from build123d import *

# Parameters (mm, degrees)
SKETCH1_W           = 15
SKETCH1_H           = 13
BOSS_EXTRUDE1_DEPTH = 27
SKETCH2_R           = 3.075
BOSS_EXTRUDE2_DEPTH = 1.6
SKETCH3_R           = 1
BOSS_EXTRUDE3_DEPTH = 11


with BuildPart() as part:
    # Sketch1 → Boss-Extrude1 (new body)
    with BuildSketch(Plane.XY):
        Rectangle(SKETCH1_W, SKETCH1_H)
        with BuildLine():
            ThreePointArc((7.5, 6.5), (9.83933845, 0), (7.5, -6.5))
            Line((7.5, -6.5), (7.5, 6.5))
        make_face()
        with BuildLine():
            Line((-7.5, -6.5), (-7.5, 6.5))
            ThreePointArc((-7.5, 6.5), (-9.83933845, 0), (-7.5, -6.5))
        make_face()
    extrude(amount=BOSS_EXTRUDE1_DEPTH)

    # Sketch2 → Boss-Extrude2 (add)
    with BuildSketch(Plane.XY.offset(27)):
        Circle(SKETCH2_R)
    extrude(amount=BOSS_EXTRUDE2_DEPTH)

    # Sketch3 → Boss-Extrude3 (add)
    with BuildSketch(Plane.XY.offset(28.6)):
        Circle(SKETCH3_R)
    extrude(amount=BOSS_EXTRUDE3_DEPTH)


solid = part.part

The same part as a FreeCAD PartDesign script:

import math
import FreeCAD as App
import Part
import Sketcher

V = App.Vector

doc = App.newDocument("Part")
params = doc.addObject("Spreadsheet::Sheet", "Params")
for row, (alias, value) in enumerate([
    ("sketch1_radius", "10.2 mm"),
    ("sketch1_width", "15 mm"),
    ("pad1_length", "27 mm"),
    ("sketch2_diameter", "6.15 mm"),
    ("pad2_length", "1.6 mm"),
    ("sketch3_diameter", "2 mm"),
    ("pad3_length", "11 mm"),
], start=1):
    params.set(f"A{row}", alias)
    params.set(f"B{row}", "=" + value)
    params.setAlias(f"B{row}", alias)

body = doc.addObject("PartDesign::Body", "Body")

# Sketch on XY plane
sketch1 = body.newObject("Sketcher::SketchObject", "Sketch")
sketch1.AttachmentSupport = (doc.getObject("XY_Plane"), [""])
sketch1.MapMode = "FlatFace"
sketch1.addGeometry([
    Part.LineSegment(V(-7.5, -6.5, 0), V(7.5, -6.5, 0)),
    Part.ArcOfCircle(Part.Circle(V(-0.360662, 0, 0), V(0, 0, 1), 10.2), math.radians(-39.587428), math.radians(39.587428)),
    Part.LineSegment(V(7.5, 6.5, 0), V(-7.5, 6.5, 0)),
    Part.ArcOfCircle(Part.Circle(V(0.360662, 0, 0), V(0, 0, 1), 10.2), math.radians(140.412572), math.radians(219.587428)),
], False)
sketch1.addConstraint([
    Sketcher.Constraint("Coincident", 0, 2, 1, 1),
    Sketcher.Constraint("Coincident", 1, 2, 2, 1),
    Sketcher.Constraint("Coincident", 2, 2, 3, 1),
    Sketcher.Constraint("Coincident", 3, 2, 0, 1),
    Sketcher.Constraint("Horizontal", 0),
    Sketcher.Constraint("Horizontal", 2),
    Sketcher.Constraint("Equal", 1, 3),
    Sketcher.Constraint("Symmetric", 1, 3, 3, 3, -1, 1),
    Sketcher.Constraint("Symmetric", 0, 2, 1, 2, -1),
    Sketcher.Constraint("Radius", 1, 10.2),
    Sketcher.Constraint("DistanceX", 0, 1, 0, 2, 15.0),
    Sketcher.Constraint("DistanceY", 0, 2, 1, 2, 13.0),
])
sketch1.setExpression("Constraints[9]", "Params.sketch1_radius")
sketch1.setExpression("Constraints[10]", "Params.sketch1_width")
pad1 = body.newObject("PartDesign::Pad", "Pad")
pad1.Profile = sketch1
pad1.setExpression("Length", "Params.pad1_length")

# Sketch on XY plane
sketch2 = body.newObject("Sketcher::SketchObject", "Sketch001")
sketch2.AttachmentSupport = (doc.getObject("XY_Plane"), [""])
sketch2.MapMode = "FlatFace"
sketch2.AttachmentOffset = App.Placement(V(0, 0, 27), App.Rotation())
sketch2.addGeometry(Part.Circle(V(0, 0, 0), V(0, 0, 1), 3.1), False)
sketch2.addConstraint([
    Sketcher.Constraint("Coincident", 0, 3, -1, 1),
    Sketcher.Constraint("Diameter", 0, 6.15),
])
sketch2.setExpression("Constraints[1]", "Params.sketch2_diameter")
pad2 = body.newObject("PartDesign::Pad", "Pad001")
pad2.Profile = sketch2
pad2.setExpression("Length", "Params.pad2_length")

# Sketch on XY plane
sketch3 = body.newObject("Sketcher::SketchObject", "Sketch002")
sketch3.AttachmentSupport = (doc.getObject("XY_Plane"), [""])
sketch3.MapMode = "FlatFace"
sketch3.AttachmentOffset = App.Placement(V(0, 0, 28.6), App.Rotation())
sketch3.addGeometry(Part.Circle(V(0, 0, 0), V(0, 0, 1), 1), False)
sketch3.addConstraint([
    Sketcher.Constraint("Coincident", 0, 3, -1, 1),
    Sketcher.Constraint("Diameter", 0, 2.0),
])
sketch3.setExpression("Constraints[1]", "Params.sketch3_diameter")
pad3 = body.newObject("PartDesign::Pad", "Pad002")
pad3.Profile = sketch3
pad3.setExpression("Length", "Params.pad3_length")

doc.recompute()
